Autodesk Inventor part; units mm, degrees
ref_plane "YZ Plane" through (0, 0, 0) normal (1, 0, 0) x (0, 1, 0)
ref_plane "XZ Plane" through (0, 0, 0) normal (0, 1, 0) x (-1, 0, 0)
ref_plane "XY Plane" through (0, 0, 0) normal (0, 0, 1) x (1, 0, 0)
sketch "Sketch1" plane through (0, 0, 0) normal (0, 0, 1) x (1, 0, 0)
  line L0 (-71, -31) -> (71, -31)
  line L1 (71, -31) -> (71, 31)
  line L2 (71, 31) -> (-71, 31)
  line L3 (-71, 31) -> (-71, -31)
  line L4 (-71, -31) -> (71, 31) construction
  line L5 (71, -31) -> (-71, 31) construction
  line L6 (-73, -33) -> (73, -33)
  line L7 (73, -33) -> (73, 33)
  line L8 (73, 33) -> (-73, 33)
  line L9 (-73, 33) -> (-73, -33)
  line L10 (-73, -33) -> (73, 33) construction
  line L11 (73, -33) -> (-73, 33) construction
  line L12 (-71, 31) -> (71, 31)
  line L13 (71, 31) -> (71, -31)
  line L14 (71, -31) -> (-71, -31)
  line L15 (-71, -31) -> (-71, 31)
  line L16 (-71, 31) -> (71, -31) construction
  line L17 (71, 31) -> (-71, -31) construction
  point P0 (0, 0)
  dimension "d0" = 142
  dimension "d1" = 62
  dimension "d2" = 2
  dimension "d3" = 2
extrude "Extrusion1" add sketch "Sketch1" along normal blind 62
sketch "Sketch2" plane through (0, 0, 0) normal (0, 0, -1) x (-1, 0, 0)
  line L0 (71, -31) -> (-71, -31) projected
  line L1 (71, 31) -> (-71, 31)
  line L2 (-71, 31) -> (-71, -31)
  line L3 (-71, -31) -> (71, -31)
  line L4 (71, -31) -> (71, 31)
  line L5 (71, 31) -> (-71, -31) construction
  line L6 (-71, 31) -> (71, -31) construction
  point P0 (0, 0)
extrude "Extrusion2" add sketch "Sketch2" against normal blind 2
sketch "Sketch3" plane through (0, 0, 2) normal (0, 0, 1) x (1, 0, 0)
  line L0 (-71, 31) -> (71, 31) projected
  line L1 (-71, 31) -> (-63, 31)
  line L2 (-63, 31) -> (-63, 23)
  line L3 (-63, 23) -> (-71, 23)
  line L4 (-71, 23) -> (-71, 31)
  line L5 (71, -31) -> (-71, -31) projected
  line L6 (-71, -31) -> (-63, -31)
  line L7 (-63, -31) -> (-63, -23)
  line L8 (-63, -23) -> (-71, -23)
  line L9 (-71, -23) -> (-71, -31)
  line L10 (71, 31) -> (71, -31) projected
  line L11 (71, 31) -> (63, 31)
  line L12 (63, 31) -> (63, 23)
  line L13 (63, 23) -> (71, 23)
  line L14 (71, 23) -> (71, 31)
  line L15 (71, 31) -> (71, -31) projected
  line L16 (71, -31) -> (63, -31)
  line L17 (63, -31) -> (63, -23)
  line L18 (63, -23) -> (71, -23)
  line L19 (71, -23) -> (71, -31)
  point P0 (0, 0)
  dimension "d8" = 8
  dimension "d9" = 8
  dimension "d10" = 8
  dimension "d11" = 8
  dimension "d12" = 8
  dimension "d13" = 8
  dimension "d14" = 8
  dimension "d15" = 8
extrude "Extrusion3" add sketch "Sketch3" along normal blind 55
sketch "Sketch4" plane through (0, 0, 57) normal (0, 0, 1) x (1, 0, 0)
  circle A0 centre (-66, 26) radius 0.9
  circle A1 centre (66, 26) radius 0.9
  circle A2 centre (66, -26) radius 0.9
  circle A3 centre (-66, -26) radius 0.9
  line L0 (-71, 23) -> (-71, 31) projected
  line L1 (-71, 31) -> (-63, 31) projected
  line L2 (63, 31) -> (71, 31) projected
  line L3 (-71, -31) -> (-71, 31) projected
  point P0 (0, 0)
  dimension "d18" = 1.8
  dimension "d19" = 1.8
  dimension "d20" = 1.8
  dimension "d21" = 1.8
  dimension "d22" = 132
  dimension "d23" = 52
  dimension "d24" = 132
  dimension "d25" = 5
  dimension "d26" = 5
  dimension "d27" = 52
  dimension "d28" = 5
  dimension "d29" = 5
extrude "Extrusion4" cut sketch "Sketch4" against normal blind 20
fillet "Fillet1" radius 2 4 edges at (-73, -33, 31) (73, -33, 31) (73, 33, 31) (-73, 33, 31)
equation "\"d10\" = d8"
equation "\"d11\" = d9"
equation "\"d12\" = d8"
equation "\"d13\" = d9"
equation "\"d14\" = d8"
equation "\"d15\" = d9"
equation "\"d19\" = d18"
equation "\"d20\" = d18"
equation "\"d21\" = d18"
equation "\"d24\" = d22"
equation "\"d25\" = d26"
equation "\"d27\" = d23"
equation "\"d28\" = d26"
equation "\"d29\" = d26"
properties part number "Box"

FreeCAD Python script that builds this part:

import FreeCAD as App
import Part
import Sketcher

V = App.Vector
Q = App.Units.Quantity


def edges_at(feature, points):
    """Names of the edges that pass closest to the given points."""
    edges = feature.Shape.Edges
    near = lambda p: min(range(len(edges)), key=lambda i: edges[i].distToShape(Part.Vertex(*p))[0])
    return sorted({f"Edge{near(p) + 1}" for p in points})


def add_polygon(sketch, points):
    """Adds a closed chain of lines whose ends are joined by coincident constraints."""
    first, n = sketch.GeometryCount, len(points)
    for a, b in zip(points, points[1:] + points[:1]):
        sketch.addGeometry(Part.LineSegment(App.Vector(*a, 0), App.Vector(*b, 0)), False)
    for i in range(n):
        sketch.addConstraint(Sketcher.Constraint("Coincident", first + i, 2, first + (i + 1) % n, 1))

doc = App.newDocument("Part")
body = doc.addObject("PartDesign::Body", "Body")

# Sketch on XY plane
sketch1 = body.newObject("Sketcher::SketchObject", "Sketch")
sketch1.AttachmentSupport = (doc.getObject("XY_Plane"), [""])
sketch1.MapMode = "FlatFace"
add_polygon(sketch1, [(-73, 33), (-73, -33), (73, -33), (73, 33)])  # lines 0-3
add_polygon(sketch1, [(71, -31), (-71, -31), (-71, 31), (71, 31)])  # lines 4-7
sketch1.addConstraint([
    Sketcher.Constraint("Vertical", 0),
    Sketcher.Constraint("Horizontal", 1),
    Sketcher.Constraint("Vertical", 2),
    Sketcher.Constraint("Horizontal", 3),
    Sketcher.Constraint("Horizontal", 4),
    Sketcher.Constraint("Vertical", 5),
    Sketcher.Constraint("Horizontal", 6),
    Sketcher.Constraint("Vertical", 7),
    Sketcher.Constraint("Symmetric", 0, 2, 2, 2, -1, 1),
    Sketcher.Constraint("Symmetric", 4, 2, 6, 2, -1, 1),
    Sketcher.Constraint("DistanceX", 4, 2, 4, 1, Q("142 mm")),
    Sketcher.Constraint("DistanceY", 5, 1, 5, 2, Q("62 mm")),
    Sketcher.Constraint("DistanceX", 0, 2, 4, 2, Q("2 mm")),
    Sketcher.Constraint("DistanceY", 0, 2, 4, 2, Q("2 mm")),
])
pad1 = body.newObject("PartDesign::Pad", "Pad")
pad1.Profile = sketch1
pad1.Length = 62

# Sketch on XY plane
sketch2 = body.newObject("Sketcher::SketchObject", "Sketch001")
sketch2.AttachmentSupport = (doc.getObject("XY_Plane"), [""])
sketch2.MapMode = "FlatFace"
add_polygon(sketch2, [(71, -31), (-71, -31), (-71, 31), (71, 31)])  # lines 0-3
sketch2.addConstraint([
    Sketcher.Constraint("Horizontal", 0),
    Sketcher.Constraint("Vertical", 1),
    Sketcher.Constraint("Horizontal", 2),
    Sketcher.Constraint("Vertical", 3),
    Sketcher.Constraint("Symmetric", 0, 2, 2, 2, -1, 1),
    Sketcher.Constraint("DistanceX", 0, 2, 0, 1, Q("142 mm")),
    Sketcher.Constraint("DistanceY", 1, 1, 1, 2, Q("62 mm")),
])
pad2 = body.newObject("PartDesign::Pad", "Pad001")
pad2.Profile = sketch2
pad2.Length = 2

# Sketch on XY plane
sketch3 = body.newObject("Sketcher::SketchObject", "Sketch002")
sketch3.AttachmentSupport = (doc.getObject("XY_Plane"), [""])
sketch3.MapMode = "FlatFace"
sketch3.AttachmentOffset = App.Placement(V(0, 0, 2), App.Rotation())
add_polygon(sketch3, [(-71, -31), (-63, -31), (-63, -23), (-71, -23)])  # lines 0-3
add_polygon(sketch3, [(71, -31), (71, -23), (63, -23), (63, -31)])  # lines 4-7
add_polygon(sketch3, [(71, 31), (63, 31), (63, 23), (71, 23)])  # lines 8-11
add_polygon(sketch3, [(-63, 31), (-71, 31), (-71, 23), (-63, 23)])  # lines 12-15
sketch3.addConstraint([
    Sketcher.Constraint("Horizontal", 0),
    Sketcher.Constraint("Vertical", 1),
    Sketcher.Constraint("Horizontal", 2),
    Sketcher.Constraint("Vertical", 3),
    Sketcher.Constraint("Vertical", 4),
    Sketcher.Constraint("Horizontal", 5),
    Sketcher.Constraint("Vertical", 6),
    Sketcher.Constraint("Horizontal", 7),
    Sketcher.Constraint("Horizontal", 8),
    Sketcher.Constraint("Vertical", 9),
    Sketcher.Constraint("Horizontal", 10),
    Sketcher.Constraint("Vertical", 11),
    Sketcher.Constraint("Horizontal", 12),
    Sketcher.Constraint("Vertical", 13),
    Sketcher.Constraint("Horizontal", 14),
    Sketcher.Constraint("Vertical", 15),
    Sketcher.Constraint("Symmetric", 0, 2, 8, 2, -1, 1),
    Sketcher.Constraint("Symmetric", 2, 2, 10, 2, -1, 1),
    Sketcher.Constraint("Symmetric", 7, 2, 12, 2, -1, 1),
    Sketcher.Constraint("Symmetric", 5, 2, 14, 2, -1, 1),
    Sketcher.Constraint("Symmetric", 2, 2, 4, 2, -2),
    Sketcher.Constraint("Symmetric", 0, 2, 6, 2, -2),
    Sketcher.Constraint("Equal", 14, 1),
    Sketcher.Constraint("DistanceX", 0, 1, 0, 2, Q("8 mm")),
    Sketcher.Constraint("DistanceX", 0, 2, -1, 1, Q("63 mm")),
    Sketcher.Constraint("DistanceY", 0, 2, -1, 1, Q("31 mm")),
])
pad3 = body.newObject("PartDesign::Pad", "Pad002")
pad3.Profile = sketch3
pad3.Length = 55

# Sketch on XY plane
sketch4 = body.newObject("Sketcher::SketchObject", "Sketch003")
sketch4.AttachmentSupport = (doc.getObject("XY_Plane"), [""])
sketch4.MapMode = "FlatFace"
sketch4.AttachmentOffset = App.Placement(V(0, 0, 57), App.Rotation())
sketch4.addGeometry([
    Part.Circle(V(-66, 26, 0), V(0, 0, 1), 0.9),
    Part.Circle(V(66, 26, 0), V(0, 0, 1), 0.9),
    Part.Circle(V(66, -26, 0), V(0, 0, 1), 0.9),
    Part.Circle(V(-66, -26, 0), V(0, 0, 1), 0.9),
], False)
sketch4.addConstraint([
    Sketcher.Constraint("Equal", 0, 1),
    Sketcher.Constraint("Equal", 1, 2),
    Sketcher.Constraint("Equal", 2, 3),
    Sketcher.Constraint("Symmetric", 0, 3, 2, 3, -1, 1),
    Sketcher.Constraint("Symmetric", 1, 3, 3, 3, -1, 1),
    Sketcher.Constraint("Symmetric", 0, 3, 1, 3, -2),
    Sketcher.Constraint("Diameter", 0, Q("1.8 mm")),
    Sketcher.Constraint("DistanceX", 0, 3, 1, 3, Q("132 mm")),
    Sketcher.Constraint("DistanceY", 2, 3, 1, 3, Q("52 mm")),
])
pocket1 = body.newObject("PartDesign::Pocket", "Pocket")
pocket1.Profile = sketch4
pocket1.Length = 20
doc.recompute()

fillet = body.newObject("PartDesign::Fillet", "Fillet")
fillet.Base = (pocket1, edges_at(pocket1, [
    (-73, -33, 31),
    (73, -33, 31),
    (73, 33, 31),
    (-73, 33, 31),
]))
fillet.Radius = 2

doc.recompute()
